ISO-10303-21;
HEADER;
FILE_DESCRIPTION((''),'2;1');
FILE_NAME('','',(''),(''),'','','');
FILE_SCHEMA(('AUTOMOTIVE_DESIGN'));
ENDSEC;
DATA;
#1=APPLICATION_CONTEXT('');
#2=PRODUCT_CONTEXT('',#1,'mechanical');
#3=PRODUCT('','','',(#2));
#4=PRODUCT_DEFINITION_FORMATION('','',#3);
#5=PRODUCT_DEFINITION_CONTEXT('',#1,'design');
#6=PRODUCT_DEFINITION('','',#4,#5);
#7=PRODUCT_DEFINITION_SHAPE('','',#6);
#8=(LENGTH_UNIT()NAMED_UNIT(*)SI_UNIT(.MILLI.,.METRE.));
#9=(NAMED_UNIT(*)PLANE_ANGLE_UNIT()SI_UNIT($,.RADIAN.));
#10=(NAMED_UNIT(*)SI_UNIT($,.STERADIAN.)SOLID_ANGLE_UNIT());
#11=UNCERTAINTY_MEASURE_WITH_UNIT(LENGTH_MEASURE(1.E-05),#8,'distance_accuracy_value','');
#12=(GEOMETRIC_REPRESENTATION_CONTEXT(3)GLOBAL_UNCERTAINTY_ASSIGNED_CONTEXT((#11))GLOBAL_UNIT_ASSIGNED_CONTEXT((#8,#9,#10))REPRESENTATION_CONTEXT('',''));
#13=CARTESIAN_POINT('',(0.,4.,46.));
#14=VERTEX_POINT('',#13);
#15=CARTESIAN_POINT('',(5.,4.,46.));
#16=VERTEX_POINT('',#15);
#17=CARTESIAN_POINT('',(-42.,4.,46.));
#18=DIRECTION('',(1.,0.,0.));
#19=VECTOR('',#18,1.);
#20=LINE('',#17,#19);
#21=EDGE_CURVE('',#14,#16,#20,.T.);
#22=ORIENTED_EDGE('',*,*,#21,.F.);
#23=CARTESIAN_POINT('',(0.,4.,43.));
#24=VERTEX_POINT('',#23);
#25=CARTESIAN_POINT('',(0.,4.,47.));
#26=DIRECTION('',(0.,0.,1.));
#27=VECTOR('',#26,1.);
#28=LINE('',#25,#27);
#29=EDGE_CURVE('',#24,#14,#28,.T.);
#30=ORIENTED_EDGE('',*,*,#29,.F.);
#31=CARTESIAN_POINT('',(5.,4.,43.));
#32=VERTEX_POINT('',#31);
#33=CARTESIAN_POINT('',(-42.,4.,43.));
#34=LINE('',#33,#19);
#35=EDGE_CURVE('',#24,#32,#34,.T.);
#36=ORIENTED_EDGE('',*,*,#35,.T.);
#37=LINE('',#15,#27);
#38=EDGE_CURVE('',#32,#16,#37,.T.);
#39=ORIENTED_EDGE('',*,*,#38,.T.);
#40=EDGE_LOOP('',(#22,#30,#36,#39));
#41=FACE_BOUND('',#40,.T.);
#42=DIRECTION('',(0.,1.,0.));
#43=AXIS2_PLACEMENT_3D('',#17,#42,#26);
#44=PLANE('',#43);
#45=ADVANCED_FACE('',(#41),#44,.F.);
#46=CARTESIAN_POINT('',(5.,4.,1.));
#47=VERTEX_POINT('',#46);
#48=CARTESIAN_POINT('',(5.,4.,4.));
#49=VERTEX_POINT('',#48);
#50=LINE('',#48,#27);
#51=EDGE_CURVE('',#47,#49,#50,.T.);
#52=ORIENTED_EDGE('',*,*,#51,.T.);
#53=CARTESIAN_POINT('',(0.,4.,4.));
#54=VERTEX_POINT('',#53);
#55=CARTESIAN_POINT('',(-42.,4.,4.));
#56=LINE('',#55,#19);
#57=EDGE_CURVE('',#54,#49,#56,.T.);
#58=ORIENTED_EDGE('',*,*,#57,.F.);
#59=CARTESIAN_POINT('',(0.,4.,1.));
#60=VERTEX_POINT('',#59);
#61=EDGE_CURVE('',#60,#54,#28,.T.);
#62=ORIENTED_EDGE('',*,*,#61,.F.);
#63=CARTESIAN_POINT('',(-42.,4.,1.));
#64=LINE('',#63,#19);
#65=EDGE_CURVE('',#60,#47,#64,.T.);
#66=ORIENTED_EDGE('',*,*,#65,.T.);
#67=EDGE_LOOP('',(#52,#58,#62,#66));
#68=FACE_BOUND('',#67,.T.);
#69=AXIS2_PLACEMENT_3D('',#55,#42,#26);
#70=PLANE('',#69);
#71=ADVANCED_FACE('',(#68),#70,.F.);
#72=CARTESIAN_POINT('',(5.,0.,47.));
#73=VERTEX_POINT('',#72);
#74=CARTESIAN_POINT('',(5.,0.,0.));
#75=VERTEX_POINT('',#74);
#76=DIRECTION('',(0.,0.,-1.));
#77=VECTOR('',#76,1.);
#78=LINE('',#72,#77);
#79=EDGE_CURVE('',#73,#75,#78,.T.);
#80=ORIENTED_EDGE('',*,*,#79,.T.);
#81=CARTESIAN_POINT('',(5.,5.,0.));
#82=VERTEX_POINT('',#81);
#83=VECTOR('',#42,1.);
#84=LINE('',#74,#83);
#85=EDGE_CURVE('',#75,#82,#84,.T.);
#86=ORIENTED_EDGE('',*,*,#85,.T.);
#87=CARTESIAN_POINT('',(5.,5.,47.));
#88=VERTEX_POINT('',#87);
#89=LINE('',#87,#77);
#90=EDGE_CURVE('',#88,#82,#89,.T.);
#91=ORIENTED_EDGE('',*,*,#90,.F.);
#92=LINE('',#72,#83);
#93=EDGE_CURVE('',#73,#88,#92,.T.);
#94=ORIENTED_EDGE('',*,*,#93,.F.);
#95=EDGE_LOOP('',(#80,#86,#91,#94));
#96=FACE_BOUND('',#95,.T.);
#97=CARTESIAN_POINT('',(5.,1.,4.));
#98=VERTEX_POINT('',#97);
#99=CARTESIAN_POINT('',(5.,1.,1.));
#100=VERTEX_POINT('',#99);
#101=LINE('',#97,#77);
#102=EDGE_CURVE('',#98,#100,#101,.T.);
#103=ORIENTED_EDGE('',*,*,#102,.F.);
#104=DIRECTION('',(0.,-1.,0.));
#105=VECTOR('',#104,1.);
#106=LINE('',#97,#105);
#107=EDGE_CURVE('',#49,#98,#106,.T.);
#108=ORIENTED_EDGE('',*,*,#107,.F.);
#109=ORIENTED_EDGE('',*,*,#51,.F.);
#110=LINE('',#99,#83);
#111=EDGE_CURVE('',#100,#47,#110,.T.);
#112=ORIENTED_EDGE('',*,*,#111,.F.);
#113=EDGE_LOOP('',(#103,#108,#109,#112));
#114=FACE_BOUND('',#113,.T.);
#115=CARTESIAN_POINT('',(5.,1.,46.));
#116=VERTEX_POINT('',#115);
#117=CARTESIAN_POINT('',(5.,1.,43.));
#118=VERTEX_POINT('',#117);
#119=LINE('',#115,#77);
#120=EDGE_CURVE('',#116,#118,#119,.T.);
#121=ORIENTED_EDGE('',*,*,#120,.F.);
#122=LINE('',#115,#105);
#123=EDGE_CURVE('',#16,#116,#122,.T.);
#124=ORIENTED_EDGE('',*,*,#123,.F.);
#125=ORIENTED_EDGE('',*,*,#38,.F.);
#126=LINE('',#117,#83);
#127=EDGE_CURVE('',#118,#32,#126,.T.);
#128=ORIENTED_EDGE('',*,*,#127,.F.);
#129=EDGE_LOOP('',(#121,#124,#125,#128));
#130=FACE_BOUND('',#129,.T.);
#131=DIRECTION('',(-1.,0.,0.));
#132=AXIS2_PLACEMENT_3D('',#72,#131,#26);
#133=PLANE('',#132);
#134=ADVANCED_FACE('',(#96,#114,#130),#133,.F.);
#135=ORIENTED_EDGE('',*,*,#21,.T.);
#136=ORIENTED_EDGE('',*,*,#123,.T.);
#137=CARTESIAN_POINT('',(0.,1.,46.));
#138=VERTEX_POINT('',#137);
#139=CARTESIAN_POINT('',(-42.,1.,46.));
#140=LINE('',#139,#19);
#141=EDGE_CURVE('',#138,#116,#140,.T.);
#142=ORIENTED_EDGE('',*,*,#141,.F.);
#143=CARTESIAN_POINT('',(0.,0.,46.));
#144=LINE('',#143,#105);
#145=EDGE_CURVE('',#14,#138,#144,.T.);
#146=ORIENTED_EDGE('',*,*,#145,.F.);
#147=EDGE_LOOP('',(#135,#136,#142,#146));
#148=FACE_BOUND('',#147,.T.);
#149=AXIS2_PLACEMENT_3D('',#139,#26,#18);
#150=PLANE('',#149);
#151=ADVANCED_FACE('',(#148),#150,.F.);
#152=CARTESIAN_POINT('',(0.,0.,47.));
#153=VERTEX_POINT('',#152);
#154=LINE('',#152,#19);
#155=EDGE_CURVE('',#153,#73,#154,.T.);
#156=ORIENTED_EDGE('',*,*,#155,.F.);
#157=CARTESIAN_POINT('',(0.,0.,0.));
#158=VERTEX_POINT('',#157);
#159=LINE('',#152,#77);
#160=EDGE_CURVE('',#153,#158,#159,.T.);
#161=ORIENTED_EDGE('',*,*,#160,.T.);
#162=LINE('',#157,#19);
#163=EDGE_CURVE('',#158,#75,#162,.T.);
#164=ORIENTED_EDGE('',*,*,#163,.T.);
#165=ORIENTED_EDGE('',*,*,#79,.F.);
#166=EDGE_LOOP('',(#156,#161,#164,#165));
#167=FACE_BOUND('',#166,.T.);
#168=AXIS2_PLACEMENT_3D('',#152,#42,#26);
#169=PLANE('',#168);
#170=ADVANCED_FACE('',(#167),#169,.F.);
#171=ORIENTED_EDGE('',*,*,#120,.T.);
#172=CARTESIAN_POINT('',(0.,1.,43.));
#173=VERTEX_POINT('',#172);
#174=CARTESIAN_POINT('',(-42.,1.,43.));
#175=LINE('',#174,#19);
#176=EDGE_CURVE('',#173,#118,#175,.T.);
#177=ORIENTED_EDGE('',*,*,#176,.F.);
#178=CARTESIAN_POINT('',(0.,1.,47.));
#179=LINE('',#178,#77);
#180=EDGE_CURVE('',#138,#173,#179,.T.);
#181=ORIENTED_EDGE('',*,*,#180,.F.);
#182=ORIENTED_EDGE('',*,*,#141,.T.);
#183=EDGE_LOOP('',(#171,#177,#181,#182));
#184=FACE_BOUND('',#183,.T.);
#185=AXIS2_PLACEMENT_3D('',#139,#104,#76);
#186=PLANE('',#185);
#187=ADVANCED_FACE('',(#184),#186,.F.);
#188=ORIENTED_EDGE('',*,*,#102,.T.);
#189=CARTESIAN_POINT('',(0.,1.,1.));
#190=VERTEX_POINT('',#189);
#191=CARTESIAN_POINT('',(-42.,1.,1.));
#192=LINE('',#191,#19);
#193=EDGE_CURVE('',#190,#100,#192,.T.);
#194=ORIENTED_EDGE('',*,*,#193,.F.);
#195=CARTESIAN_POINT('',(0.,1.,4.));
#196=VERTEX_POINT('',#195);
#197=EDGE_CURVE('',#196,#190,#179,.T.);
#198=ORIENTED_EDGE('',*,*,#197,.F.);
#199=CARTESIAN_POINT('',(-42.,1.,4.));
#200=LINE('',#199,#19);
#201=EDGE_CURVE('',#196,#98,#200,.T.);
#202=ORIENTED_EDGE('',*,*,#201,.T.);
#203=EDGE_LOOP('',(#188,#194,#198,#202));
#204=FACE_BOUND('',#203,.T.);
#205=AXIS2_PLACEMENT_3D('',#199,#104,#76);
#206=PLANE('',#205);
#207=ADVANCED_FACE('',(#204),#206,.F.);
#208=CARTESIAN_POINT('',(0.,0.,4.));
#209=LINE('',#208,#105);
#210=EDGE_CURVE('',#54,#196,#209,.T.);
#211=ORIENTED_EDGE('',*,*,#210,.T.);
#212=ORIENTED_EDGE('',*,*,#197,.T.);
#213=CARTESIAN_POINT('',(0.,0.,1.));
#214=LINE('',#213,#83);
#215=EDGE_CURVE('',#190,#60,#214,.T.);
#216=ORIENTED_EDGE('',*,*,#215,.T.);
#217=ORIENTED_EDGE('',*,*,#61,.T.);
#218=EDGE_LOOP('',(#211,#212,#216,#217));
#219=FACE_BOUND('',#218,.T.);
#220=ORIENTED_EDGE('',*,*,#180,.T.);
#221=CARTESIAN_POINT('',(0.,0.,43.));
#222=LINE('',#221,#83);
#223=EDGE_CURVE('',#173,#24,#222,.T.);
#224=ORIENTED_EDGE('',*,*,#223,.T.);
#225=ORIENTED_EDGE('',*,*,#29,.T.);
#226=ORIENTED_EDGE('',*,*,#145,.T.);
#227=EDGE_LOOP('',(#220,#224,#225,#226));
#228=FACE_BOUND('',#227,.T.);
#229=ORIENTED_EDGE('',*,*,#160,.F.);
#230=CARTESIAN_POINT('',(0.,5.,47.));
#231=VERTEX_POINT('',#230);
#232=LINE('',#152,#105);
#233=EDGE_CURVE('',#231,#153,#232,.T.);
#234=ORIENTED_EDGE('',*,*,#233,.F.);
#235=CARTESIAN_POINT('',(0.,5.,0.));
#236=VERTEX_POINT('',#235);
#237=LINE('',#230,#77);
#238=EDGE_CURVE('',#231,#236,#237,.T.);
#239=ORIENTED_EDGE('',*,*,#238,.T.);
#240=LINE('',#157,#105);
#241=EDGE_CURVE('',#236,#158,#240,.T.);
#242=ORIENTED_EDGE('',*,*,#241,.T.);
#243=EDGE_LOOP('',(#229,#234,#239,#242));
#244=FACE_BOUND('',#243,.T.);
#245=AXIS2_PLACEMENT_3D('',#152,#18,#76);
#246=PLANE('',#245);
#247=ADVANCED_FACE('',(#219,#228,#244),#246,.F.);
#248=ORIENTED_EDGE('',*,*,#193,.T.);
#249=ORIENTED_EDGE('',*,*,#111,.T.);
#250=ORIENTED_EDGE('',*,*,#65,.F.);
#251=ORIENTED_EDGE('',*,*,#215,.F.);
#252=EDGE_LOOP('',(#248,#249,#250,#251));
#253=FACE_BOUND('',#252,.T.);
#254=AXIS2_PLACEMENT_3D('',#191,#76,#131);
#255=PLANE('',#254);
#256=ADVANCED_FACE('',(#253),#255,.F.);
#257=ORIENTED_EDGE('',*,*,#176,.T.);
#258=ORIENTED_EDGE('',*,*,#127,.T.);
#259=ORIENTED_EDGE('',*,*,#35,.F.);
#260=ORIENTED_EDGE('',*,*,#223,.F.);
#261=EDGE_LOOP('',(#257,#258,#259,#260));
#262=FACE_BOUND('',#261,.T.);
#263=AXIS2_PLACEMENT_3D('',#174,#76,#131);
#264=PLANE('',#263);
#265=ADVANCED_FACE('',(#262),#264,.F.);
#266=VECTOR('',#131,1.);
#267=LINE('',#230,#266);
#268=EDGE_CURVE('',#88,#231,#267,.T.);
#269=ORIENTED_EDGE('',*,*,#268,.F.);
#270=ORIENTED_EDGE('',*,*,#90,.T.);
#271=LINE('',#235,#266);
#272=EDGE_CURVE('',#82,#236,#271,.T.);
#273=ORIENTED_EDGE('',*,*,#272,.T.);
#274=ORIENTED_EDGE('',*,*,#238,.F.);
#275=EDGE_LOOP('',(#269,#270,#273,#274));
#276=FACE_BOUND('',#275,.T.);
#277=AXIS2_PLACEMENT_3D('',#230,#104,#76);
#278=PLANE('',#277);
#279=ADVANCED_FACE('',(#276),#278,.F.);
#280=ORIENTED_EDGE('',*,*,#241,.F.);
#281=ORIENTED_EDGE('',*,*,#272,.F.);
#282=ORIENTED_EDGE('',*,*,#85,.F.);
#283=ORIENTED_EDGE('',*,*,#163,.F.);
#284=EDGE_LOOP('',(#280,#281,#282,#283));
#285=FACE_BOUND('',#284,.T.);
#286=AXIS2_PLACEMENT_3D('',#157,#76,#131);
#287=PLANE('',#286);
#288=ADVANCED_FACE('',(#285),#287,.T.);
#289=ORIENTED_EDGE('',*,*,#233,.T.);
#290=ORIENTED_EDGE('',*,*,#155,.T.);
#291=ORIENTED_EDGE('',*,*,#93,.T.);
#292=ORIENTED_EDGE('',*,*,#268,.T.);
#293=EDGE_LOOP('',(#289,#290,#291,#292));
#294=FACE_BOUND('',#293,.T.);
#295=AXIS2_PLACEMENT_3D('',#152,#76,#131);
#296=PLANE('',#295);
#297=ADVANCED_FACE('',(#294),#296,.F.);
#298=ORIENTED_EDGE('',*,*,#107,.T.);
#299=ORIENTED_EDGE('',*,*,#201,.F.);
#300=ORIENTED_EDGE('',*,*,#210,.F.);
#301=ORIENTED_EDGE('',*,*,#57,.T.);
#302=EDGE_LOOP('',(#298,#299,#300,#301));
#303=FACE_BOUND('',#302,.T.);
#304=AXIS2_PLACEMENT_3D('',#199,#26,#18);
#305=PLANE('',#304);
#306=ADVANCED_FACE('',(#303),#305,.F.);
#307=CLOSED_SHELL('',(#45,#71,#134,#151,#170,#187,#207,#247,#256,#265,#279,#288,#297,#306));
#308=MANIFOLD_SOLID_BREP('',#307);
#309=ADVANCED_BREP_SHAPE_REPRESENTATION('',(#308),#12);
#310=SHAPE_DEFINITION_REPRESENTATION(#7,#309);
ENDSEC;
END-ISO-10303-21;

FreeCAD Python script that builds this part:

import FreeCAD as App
import Part
import Sketcher

doc = App.newDocument("Part")
body = doc.addObject("PartDesign::Body", "Body")

sketch1 = body.newObject("Sketcher::SketchObject", "Sketch")
sketch1.AttachmentSupport = (doc.getObject("XY_Plane"), [""])
sketch1.MapMode = "FlatFace"
sketch1.addGeometry(Part.LineSegment(App.Vector(0, 5, 0), App.Vector(0, 0, 0)), False)
sketch1.addGeometry(Part.LineSegment(App.Vector(0, 0, 0), App.Vector(5, 0, 0)), False)
sketch1.addGeometry(Part.LineSegment(App.Vector(5, 0, 0), App.Vector(5, 5, 0)), False)
sketch1.addGeometry(Part.LineSegment(App.Vector(5, 5, 0), App.Vector(0, 5, 0)), False)
sketch1.addConstraint(Sketcher.Constraint("Coincident", 0, 2, 1, 1))
sketch1.addConstraint(Sketcher.Constraint("Coincident", 1, 2, 2, 1))
sketch1.addConstraint(Sketcher.Constraint("Coincident", 2, 2, 3, 1))
sketch1.addConstraint(Sketcher.Constraint("Coincident", 3, 2, 0, 1))
sketch1.addConstraint(Sketcher.Constraint("Vertical", 0))
sketch1.addConstraint(Sketcher.Constraint("Horizontal", 1))
sketch1.addConstraint(Sketcher.Constraint("Vertical", 2))
sketch1.addConstraint(Sketcher.Constraint("Horizontal", 3))
sketch1.addConstraint(Sketcher.Constraint("Coincident", 0, 2, -1, 1))
sketch1.addConstraint(Sketcher.Constraint("Equal", 3, 0))
sketch1.addConstraint(Sketcher.Constraint("DistanceX", 1, 1, 1, 2, 5.0))
pad1 = body.newObject("PartDesign::Pad", "Pad")
pad1.Profile = sketch1
pad1.Length = 47

sketch2 = body.newObject("Sketcher::SketchObject", "Sketch001")
sketch2.AttachmentSupport = (doc.getObject("YZ_Plane"), [""])
sketch2.MapMode = "FlatFace"
sketch2.AttachmentOffset = App.Placement(App.Vector(0, 0, 5), App.Rotation())
sketch2.addGeometry(Part.LineSegment(App.Vector(4, 46, 0), App.Vector(1, 46, 0)), False)
sketch2.addGeometry(Part.LineSegment(App.Vector(1, 46, 0), App.Vector(1, 43, 0)), False)
sketch2.addGeometry(Part.LineSegment(App.Vector(1, 43, 0), App.Vector(4, 43, 0)), False)
sketch2.addGeometry(Part.LineSegment(App.Vector(4, 43, 0), App.Vector(4, 46, 0)), False)
sketch2.addGeometry(Part.LineSegment(App.Vector(4, 4, 0), App.Vector(1, 4, 0)), False)
sketch2.addGeometry(Part.LineSegment(App.Vector(1, 4, 0), App.Vector(1, 1, 0)), False)
sketch2.addGeometry(Part.LineSegment(App.Vector(1, 1, 0), App.Vector(4, 1, 0)), False)
sketch2.addGeometry(Part.LineSegment(App.Vector(4, 1, 0), App.Vector(4, 4, 0)), False)
sketch2.addConstraint(Sketcher.Constraint("Coincident", 0, 2, 1, 1))
sketch2.addConstraint(Sketcher.Constraint("Coincident", 1, 2, 2, 1))
sketch2.addConstraint(Sketcher.Constraint("Coincident", 2, 2, 3, 1))
sketch2.addConstraint(Sketcher.Constraint("Coincident", 3, 2, 0, 1))
sketch2.addConstraint(Sketcher.Constraint("Coincident", 4, 2, 5, 1))
sketch2.addConstraint(Sketcher.Constraint("Coincident", 5, 2, 6, 1))
sketch2.addConstraint(Sketcher.Constraint("Coincident", 6, 2, 7, 1))
sketch2.addConstraint(Sketcher.Constraint("Coincident", 7, 2, 4, 1))
sketch2.addConstraint(Sketcher.Constraint("Horizontal", 0))
sketch2.addConstraint(Sketcher.Constraint("Vertical", 1))
sketch2.addConstraint(Sketcher.Constraint("Horizontal", 2))
sketch2.addConstraint(Sketcher.Constraint("Vertical", 3))
sketch2.addConstraint(Sketcher.Constraint("Horizontal", 4))
sketch2.addConstraint(Sketcher.Constraint("Vertical", 5))
sketch2.addConstraint(Sketcher.Constraint("Horizontal", 6))
sketch2.addConstraint(Sketcher.Constraint("Vertical", 7))
sketch2.addConstraint(Sketcher.Constraint("Vertical", 1, 2, 4, 2))
sketch2.addConstraint(Sketcher.Constraint("Vertical", 3, 2, 6, 2))
sketch2.addConstraint(Sketcher.Constraint("Equal", 6, 1))
sketch2.addConstraint(Sketcher.Constraint("Equal", 3, 5))
sketch2.addConstraint(Sketcher.Constraint("DistanceX", 0, 2, 0, 1, 3.0))
sketch2.addConstraint(Sketcher.Constraint("DistanceX", -1, 1, 0, 2, 1.0))
sketch2.addConstraint(Sketcher.Constraint("DistanceY", -1, 1, 0, 2, 46.0))
sketch2.addConstraint(Sketcher.Constraint("DistanceY", -1, 1, 4, 2, 4.0))
pocket1 = body.newObject("PartDesign::Pocket", "Pocket")
pocket1.Profile = sketch2
pocket1.Length = 47

doc.recompute()
